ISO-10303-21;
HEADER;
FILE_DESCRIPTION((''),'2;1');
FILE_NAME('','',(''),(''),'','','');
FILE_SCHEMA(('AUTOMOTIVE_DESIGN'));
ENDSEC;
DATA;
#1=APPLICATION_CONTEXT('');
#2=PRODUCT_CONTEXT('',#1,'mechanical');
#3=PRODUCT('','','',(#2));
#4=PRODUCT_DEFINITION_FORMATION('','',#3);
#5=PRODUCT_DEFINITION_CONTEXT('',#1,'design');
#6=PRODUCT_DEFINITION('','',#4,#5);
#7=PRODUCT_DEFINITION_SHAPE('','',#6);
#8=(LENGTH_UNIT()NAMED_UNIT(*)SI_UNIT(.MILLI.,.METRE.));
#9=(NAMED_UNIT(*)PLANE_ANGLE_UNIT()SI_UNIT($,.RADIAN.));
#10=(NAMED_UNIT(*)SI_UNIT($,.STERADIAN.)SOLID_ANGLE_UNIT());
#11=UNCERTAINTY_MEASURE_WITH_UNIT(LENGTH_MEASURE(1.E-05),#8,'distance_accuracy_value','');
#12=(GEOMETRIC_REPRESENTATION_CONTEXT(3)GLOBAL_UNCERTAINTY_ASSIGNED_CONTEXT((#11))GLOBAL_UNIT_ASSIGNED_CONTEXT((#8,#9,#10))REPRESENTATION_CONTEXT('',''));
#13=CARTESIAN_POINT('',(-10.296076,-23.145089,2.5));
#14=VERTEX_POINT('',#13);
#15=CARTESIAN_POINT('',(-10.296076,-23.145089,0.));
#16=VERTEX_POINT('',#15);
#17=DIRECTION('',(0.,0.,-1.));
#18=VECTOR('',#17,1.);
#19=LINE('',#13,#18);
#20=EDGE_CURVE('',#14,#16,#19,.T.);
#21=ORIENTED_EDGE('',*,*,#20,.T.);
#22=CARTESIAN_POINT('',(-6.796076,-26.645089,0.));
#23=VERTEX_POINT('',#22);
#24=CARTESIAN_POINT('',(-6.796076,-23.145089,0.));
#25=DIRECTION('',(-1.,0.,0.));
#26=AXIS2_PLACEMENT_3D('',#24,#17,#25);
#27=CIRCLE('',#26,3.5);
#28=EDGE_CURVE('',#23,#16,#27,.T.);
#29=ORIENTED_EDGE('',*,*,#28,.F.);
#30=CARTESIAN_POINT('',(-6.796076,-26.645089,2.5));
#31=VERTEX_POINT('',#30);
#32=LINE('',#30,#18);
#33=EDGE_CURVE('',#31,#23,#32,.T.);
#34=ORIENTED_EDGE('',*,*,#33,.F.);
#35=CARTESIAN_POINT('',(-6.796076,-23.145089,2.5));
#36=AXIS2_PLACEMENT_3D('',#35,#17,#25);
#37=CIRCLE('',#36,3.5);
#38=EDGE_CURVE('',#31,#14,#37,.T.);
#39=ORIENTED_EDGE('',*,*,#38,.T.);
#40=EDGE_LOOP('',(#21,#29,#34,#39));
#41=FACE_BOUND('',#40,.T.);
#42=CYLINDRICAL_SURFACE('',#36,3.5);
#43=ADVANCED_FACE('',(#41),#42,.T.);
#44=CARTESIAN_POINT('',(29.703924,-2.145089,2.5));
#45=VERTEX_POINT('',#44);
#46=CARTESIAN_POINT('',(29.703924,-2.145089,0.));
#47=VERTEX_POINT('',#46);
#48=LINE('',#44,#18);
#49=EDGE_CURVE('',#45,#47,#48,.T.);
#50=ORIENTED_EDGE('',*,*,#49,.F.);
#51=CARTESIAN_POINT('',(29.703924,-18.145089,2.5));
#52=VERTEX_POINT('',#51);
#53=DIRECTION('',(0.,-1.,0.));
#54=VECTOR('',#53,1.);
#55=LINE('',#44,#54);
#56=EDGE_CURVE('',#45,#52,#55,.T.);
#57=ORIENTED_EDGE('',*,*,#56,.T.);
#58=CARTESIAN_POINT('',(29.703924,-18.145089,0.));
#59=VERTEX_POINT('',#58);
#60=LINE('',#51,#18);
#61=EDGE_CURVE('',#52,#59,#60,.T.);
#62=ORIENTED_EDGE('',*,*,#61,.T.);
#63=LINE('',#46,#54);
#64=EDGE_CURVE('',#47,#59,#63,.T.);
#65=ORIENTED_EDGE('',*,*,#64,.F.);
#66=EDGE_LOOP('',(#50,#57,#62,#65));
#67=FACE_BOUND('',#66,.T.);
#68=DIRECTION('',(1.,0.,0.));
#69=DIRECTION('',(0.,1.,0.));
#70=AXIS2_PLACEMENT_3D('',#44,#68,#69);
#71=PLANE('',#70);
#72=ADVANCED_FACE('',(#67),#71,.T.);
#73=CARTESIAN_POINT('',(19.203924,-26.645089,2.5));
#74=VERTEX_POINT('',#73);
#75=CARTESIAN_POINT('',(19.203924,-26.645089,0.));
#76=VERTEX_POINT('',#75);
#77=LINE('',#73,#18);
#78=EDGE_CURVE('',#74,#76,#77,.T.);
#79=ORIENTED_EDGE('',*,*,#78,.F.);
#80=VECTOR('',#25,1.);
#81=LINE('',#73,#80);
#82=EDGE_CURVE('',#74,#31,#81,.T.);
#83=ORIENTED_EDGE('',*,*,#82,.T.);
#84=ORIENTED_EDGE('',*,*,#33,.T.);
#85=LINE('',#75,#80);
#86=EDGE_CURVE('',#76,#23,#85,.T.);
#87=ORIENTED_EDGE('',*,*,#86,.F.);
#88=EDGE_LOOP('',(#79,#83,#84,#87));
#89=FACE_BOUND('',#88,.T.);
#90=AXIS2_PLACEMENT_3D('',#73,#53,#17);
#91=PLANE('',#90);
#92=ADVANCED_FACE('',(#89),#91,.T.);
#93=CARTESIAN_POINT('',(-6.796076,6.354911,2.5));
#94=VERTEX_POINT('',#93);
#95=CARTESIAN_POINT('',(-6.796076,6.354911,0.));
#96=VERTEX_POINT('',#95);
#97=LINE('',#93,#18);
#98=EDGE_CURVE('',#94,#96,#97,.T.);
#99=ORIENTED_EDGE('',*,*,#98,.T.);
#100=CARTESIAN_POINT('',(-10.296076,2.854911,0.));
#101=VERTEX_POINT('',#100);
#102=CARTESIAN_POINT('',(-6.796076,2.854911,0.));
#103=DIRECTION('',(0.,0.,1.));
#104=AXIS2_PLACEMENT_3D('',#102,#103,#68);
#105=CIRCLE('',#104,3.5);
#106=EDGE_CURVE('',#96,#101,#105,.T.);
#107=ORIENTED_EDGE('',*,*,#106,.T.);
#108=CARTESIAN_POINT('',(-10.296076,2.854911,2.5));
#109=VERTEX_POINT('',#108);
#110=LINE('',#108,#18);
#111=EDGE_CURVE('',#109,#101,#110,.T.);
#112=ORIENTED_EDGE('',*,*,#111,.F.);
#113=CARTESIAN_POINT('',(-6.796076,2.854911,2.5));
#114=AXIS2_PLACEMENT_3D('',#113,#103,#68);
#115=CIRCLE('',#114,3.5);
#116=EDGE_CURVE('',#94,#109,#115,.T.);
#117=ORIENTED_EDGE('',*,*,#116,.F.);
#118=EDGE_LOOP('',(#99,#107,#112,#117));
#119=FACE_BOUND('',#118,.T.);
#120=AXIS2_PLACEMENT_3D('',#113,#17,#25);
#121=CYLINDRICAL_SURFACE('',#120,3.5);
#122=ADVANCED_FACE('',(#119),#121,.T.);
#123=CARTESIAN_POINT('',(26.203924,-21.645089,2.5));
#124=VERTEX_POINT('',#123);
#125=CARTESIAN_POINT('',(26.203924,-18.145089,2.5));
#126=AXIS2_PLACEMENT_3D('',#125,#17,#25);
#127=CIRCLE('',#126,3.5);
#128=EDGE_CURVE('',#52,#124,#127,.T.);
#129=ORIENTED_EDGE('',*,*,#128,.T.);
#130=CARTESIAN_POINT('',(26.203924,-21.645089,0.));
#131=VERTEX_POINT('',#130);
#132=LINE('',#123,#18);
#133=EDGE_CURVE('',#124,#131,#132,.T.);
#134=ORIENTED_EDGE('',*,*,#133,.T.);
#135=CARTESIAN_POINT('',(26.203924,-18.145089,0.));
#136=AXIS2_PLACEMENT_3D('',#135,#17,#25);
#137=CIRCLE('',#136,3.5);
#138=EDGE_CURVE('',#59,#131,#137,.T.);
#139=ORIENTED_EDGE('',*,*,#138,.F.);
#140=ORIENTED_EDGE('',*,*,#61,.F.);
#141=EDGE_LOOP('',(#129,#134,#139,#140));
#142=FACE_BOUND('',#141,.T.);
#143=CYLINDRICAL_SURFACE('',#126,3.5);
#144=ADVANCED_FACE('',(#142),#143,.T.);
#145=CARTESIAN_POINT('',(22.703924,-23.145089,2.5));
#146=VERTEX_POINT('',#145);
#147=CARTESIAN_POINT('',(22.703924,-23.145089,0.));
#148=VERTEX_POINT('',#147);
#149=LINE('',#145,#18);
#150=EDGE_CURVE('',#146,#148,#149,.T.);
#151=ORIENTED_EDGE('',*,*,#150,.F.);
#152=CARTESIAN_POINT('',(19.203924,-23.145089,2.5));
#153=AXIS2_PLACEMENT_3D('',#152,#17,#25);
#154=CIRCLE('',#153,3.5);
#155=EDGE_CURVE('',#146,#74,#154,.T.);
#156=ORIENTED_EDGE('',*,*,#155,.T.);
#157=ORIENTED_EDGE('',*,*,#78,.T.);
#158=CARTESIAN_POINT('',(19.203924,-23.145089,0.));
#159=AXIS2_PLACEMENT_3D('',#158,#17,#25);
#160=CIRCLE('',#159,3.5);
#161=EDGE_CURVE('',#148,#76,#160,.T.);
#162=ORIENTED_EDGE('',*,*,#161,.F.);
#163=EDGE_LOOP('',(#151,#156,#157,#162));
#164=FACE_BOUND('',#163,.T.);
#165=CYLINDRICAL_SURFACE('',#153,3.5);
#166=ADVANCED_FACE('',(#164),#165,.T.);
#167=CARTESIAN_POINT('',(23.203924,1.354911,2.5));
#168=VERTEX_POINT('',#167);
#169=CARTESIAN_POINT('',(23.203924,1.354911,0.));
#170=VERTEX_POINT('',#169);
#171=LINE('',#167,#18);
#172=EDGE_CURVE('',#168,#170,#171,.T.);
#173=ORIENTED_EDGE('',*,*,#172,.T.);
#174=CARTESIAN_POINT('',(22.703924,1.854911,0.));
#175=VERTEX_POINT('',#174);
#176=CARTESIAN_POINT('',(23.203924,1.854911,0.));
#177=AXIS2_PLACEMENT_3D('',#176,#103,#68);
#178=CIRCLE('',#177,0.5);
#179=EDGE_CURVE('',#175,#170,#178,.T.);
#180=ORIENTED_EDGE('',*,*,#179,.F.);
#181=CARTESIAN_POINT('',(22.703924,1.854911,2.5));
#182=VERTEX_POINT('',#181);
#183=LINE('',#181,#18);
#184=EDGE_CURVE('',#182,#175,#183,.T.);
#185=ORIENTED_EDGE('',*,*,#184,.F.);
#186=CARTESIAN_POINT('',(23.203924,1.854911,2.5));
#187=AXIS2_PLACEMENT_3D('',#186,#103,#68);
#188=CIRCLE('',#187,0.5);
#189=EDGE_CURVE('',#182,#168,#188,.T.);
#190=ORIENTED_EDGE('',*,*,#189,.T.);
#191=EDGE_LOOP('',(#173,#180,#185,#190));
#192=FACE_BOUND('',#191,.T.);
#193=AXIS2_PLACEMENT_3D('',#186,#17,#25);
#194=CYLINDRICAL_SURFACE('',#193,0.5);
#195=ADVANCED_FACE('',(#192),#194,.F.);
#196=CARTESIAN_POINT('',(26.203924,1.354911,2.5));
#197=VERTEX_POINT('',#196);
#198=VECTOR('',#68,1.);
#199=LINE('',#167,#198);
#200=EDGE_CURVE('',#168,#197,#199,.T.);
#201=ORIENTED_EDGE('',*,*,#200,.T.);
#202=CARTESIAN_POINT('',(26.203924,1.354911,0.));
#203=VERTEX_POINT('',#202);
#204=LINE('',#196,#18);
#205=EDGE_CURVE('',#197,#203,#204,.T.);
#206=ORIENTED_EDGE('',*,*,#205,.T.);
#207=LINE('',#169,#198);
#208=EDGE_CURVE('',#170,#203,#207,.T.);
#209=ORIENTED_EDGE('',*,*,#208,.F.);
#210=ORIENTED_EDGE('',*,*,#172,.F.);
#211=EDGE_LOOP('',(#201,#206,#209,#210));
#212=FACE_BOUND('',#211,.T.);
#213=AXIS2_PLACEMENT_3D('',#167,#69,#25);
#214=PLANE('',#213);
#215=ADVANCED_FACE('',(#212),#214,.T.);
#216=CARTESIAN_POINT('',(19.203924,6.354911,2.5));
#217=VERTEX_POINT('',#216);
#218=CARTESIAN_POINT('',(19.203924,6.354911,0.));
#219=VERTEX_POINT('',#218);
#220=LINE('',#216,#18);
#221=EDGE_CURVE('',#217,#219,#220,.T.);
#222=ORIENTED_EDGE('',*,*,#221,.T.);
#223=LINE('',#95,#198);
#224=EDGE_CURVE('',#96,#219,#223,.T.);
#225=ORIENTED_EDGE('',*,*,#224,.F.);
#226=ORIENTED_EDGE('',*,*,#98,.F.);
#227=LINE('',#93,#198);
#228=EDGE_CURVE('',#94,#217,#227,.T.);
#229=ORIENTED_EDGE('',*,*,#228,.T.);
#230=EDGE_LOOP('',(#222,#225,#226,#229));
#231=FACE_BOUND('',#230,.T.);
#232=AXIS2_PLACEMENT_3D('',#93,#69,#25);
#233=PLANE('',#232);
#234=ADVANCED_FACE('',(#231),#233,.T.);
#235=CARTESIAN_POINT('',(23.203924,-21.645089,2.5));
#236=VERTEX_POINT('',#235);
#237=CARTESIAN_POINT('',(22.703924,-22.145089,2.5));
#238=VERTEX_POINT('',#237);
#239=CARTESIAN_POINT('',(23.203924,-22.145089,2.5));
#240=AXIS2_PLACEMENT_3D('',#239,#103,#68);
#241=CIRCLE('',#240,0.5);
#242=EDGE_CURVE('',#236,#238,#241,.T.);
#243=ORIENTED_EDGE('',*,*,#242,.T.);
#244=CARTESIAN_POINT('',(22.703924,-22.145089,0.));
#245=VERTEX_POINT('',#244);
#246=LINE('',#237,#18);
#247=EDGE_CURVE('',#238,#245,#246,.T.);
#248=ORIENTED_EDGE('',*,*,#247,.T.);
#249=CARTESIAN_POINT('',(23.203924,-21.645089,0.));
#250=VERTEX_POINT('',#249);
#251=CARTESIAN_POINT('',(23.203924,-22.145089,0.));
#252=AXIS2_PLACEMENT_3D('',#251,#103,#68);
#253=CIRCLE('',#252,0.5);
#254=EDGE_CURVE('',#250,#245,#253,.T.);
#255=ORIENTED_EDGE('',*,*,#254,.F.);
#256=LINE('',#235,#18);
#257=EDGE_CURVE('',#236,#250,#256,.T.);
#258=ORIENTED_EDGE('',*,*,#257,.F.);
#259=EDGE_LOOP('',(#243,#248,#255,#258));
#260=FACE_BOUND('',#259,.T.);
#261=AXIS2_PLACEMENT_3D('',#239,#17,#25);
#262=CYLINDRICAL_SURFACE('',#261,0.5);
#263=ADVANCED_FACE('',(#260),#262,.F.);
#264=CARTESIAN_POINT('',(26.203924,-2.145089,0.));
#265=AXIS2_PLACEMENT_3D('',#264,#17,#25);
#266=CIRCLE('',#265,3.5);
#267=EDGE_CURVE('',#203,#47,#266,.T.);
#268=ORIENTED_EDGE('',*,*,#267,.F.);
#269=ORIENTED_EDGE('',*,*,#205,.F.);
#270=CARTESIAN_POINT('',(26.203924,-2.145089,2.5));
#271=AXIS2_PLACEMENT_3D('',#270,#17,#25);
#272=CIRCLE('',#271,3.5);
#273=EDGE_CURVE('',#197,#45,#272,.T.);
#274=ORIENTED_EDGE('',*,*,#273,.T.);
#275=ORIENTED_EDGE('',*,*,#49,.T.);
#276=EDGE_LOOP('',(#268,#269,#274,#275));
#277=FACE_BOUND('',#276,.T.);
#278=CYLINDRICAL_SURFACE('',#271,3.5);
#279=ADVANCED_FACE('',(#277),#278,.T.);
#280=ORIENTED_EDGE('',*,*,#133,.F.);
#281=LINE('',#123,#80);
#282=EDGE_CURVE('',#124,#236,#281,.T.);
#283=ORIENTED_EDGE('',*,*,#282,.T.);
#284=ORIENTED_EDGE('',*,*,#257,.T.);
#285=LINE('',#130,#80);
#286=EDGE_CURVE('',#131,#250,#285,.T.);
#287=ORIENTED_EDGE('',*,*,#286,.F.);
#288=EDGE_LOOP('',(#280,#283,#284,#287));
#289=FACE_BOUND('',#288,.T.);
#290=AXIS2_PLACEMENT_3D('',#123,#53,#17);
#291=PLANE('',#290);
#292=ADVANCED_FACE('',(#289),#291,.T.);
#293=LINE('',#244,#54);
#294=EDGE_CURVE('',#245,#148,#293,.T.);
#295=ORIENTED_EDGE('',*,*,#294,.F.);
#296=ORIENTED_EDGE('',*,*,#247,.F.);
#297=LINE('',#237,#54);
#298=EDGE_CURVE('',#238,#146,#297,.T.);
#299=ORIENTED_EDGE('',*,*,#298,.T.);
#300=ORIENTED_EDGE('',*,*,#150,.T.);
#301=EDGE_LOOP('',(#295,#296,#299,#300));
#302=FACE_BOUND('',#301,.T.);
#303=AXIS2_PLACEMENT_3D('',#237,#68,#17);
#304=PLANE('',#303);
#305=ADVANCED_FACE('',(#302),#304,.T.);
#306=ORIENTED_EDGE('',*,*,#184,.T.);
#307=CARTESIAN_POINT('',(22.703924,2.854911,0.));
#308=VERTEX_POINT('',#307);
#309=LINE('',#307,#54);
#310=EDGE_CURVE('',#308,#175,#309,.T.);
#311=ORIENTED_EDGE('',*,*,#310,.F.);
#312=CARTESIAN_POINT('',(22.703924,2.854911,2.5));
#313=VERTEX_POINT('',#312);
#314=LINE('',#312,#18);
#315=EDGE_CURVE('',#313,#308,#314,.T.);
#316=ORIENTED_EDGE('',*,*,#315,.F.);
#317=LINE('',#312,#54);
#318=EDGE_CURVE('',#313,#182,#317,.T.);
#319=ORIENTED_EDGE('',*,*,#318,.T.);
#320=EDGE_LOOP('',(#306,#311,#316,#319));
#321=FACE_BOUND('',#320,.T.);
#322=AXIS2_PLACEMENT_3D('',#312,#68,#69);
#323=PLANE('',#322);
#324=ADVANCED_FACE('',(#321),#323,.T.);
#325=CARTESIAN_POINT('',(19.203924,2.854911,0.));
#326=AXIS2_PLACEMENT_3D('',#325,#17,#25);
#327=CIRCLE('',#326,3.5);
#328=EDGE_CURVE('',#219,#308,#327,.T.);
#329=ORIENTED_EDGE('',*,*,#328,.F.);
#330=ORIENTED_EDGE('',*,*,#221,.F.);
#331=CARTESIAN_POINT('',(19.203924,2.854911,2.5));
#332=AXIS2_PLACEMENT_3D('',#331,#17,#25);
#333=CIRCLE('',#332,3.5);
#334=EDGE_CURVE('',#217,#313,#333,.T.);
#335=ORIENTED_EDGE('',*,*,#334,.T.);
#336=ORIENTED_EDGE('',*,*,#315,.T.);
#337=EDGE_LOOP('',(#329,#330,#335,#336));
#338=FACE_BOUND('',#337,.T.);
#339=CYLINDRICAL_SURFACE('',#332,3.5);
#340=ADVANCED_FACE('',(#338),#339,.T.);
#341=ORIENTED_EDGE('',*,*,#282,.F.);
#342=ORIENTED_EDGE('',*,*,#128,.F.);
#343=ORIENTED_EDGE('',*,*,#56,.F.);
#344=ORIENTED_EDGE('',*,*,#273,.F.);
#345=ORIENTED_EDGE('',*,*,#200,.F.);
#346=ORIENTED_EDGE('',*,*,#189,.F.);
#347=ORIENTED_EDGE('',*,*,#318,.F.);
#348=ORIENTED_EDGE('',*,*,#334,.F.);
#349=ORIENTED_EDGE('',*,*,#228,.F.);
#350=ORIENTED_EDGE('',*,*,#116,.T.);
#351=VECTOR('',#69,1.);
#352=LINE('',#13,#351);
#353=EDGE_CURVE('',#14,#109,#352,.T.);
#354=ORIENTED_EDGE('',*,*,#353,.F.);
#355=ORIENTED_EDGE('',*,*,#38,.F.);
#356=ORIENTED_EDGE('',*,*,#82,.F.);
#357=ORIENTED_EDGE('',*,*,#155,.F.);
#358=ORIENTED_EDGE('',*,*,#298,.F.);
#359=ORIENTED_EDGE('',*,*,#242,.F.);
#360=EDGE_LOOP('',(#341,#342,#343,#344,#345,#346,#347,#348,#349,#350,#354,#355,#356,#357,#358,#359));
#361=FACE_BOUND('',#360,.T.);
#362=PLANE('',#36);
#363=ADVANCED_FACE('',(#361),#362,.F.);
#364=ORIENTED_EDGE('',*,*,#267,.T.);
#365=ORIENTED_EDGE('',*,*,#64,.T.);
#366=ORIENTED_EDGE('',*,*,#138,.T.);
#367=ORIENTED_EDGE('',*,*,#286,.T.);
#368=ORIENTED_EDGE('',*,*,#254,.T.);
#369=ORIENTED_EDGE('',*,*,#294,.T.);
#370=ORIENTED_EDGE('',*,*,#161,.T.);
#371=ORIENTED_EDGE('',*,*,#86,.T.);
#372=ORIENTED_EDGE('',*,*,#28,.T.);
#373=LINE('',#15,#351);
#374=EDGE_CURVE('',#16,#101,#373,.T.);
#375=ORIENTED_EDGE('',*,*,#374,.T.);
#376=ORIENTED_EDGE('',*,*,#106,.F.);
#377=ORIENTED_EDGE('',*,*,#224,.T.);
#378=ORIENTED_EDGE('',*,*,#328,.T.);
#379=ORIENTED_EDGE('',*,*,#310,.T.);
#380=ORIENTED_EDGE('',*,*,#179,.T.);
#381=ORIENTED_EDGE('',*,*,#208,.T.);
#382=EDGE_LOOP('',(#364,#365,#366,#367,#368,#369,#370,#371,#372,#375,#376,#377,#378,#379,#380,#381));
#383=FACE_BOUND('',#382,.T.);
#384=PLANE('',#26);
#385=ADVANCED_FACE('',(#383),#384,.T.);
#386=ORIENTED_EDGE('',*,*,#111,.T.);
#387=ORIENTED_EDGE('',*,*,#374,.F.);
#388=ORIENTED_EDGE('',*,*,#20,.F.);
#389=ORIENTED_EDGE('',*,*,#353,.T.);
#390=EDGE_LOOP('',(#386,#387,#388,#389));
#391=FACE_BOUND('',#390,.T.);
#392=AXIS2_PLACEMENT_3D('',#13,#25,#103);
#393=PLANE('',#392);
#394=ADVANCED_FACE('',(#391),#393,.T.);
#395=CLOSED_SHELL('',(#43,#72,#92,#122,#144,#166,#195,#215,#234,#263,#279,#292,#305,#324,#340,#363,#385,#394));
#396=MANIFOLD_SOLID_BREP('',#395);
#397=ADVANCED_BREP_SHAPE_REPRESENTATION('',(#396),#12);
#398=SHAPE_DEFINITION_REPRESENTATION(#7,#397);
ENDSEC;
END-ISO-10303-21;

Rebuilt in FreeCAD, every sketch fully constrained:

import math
import FreeCAD as App
import Part
import Sketcher

V = App.Vector
Q = App.Units.Quantity

doc = App.newDocument("Part")
body = doc.addObject("PartDesign::Body", "Body")

sketch1 = body.newObject("Sketcher::SketchObject", "Sketch")
sketch1.AttachmentSupport = (doc.getObject("XY_Plane"), [""])
sketch1.MapMode = "FlatFace"
sketch1.addGeometry([
    Part.LineSegment(V(-10.3, 2.9, 0), V(-10.3, -23.1, 0)),
    Part.ArcOfCircle(Part.Circle(V(-6.8, -23.1, 0), V(0, 0, 1), 3.5), math.radians(-180), math.radians(-90)),
    Part.LineSegment(V(-6.8, -26.6, 0), V(19.2, -26.6, 0)),
    Part.ArcOfCircle(Part.Circle(V(19.2, -23.1, 0), V(0, 0, 1), 3.5), math.radians(-90), math.radians(0)),
    Part.LineSegment(V(22.7, -23.1, 0), V(22.7, -22.1, 0)),
    Part.ArcOfCircle(Part.Circle(V(23.2, -22.1, 0), V(0, 0, 1), 0.5), math.radians(90), math.radians(180)),
    Part.LineSegment(V(23.2, -21.6, 0), V(26.2, -21.6, 0)),
    Part.ArcOfCircle(Part.Circle(V(26.2, -18.1, 0), V(0, 0, 1), 3.5), math.radians(-90), math.radians(0)),
    Part.LineSegment(V(29.7, -18.1, 0), V(29.7, -2.1, 0)),
    Part.ArcOfCircle(Part.Circle(V(26.2, -2.1, 0), V(0, 0, 1), 3.5), math.radians(0), math.radians(90)),
    Part.LineSegment(V(26.2, 1.4, 0), V(23.2, 1.4, 0)),
    Part.ArcOfCircle(Part.Circle(V(23.2, 1.9, 0), V(0, 0, 1), 0.5), math.radians(-180), math.radians(-90)),
    Part.LineSegment(V(22.7, 1.9, 0), V(22.7, 2.9, 0)),
    Part.ArcOfCircle(Part.Circle(V(19.2, 2.9, 0), V(0, 0, 1), 3.5), math.radians(0), math.radians(90)),
    Part.LineSegment(V(19.2, 6.4, 0), V(-6.8, 6.4, 0)),
    Part.ArcOfCircle(Part.Circle(V(-6.8, 2.9, 0), V(0, 0, 1), 3.5), math.radians(90), math.radians(180)),
], False)
sketch1.addConstraint([
    Sketcher.Constraint("Tangent", 0, 2, 1, 1),
    Sketcher.Constraint("Tangent", 1, 2, 2, 1),
    Sketcher.Constraint("Tangent", 2, 2, 3, 1),
    Sketcher.Constraint("Tangent", 3, 2, 4, 1),
    Sketcher.Constraint("Tangent", 4, 2, 5, 2),
    Sketcher.Constraint("Tangent", 5, 1, 6, 1),
    Sketcher.Constraint("Tangent", 6, 2, 7, 1),
    Sketcher.Constraint("Tangent", 7, 2, 8, 1),
    Sketcher.Constraint("Tangent", 8, 2, 9, 1),
    Sketcher.Constraint("Tangent", 9, 2, 10, 1),
    Sketcher.Constraint("Tangent", 10, 2, 11, 2),
    Sketcher.Constraint("Tangent", 11, 1, 12, 1),
    Sketcher.Constraint("Tangent", 12, 2, 13, 1),
    Sketcher.Constraint("Tangent", 13, 2, 14, 1),
    Sketcher.Constraint("Tangent", 14, 2, 15, 1),
    Sketcher.Constraint("Tangent", 15, 2, 0, 1),
    Sketcher.Constraint("Vertical", 0),
    Sketcher.Constraint("Horizontal", 2),
    Sketcher.Constraint("Vertical", 4),
    Sketcher.Constraint("Horizontal", 6),
    Sketcher.Constraint("Vertical", 8),
    Sketcher.Constraint("Horizontal", 10),
    Sketcher.Constraint("Vertical", 12),
    Sketcher.Constraint("Horizontal", 14),
    Sketcher.Constraint("Equal", 1, 3),
    Sketcher.Constraint("Equal", 3, 7),
    Sketcher.Constraint("Equal", 7, 9),
    Sketcher.Constraint("Equal", 5, 11),
    Sketcher.Constraint("Equal", 9, 13),
    Sketcher.Constraint("Equal", 13, 15),
    Sketcher.Constraint("Vertical", 5, 3, 11, 3),
    Sketcher.Constraint("Equal", 14, 0),
    Sketcher.Constraint("Equal", 4, 12),
    Sketcher.Constraint("Radius", 1, Q("3.5 mm")),
    Sketcher.Constraint("Radius", 5, Q("0.5 mm")),
    Sketcher.Constraint("DistanceX", 2, 1, 2, 2, Q("26 mm")),
    Sketcher.Constraint("DistanceX", 6, 1, 6, 2, Q("3 mm")),
    Sketcher.Constraint("DistanceY", 4, 1, 4, 2, Q("1 mm")),
    Sketcher.Constraint("DistanceY", 1, 3, -1, 1, Q("23.145089 mm")),
    Sketcher.Constraint("DistanceX", 1, 3, -1, 1, Q("6.796076 mm")),
])
pad1 = body.newObject("PartDesign::Pad", "Pad")
pad1.Profile = sketch1
pad1.Length = 2.5

doc.recompute()
